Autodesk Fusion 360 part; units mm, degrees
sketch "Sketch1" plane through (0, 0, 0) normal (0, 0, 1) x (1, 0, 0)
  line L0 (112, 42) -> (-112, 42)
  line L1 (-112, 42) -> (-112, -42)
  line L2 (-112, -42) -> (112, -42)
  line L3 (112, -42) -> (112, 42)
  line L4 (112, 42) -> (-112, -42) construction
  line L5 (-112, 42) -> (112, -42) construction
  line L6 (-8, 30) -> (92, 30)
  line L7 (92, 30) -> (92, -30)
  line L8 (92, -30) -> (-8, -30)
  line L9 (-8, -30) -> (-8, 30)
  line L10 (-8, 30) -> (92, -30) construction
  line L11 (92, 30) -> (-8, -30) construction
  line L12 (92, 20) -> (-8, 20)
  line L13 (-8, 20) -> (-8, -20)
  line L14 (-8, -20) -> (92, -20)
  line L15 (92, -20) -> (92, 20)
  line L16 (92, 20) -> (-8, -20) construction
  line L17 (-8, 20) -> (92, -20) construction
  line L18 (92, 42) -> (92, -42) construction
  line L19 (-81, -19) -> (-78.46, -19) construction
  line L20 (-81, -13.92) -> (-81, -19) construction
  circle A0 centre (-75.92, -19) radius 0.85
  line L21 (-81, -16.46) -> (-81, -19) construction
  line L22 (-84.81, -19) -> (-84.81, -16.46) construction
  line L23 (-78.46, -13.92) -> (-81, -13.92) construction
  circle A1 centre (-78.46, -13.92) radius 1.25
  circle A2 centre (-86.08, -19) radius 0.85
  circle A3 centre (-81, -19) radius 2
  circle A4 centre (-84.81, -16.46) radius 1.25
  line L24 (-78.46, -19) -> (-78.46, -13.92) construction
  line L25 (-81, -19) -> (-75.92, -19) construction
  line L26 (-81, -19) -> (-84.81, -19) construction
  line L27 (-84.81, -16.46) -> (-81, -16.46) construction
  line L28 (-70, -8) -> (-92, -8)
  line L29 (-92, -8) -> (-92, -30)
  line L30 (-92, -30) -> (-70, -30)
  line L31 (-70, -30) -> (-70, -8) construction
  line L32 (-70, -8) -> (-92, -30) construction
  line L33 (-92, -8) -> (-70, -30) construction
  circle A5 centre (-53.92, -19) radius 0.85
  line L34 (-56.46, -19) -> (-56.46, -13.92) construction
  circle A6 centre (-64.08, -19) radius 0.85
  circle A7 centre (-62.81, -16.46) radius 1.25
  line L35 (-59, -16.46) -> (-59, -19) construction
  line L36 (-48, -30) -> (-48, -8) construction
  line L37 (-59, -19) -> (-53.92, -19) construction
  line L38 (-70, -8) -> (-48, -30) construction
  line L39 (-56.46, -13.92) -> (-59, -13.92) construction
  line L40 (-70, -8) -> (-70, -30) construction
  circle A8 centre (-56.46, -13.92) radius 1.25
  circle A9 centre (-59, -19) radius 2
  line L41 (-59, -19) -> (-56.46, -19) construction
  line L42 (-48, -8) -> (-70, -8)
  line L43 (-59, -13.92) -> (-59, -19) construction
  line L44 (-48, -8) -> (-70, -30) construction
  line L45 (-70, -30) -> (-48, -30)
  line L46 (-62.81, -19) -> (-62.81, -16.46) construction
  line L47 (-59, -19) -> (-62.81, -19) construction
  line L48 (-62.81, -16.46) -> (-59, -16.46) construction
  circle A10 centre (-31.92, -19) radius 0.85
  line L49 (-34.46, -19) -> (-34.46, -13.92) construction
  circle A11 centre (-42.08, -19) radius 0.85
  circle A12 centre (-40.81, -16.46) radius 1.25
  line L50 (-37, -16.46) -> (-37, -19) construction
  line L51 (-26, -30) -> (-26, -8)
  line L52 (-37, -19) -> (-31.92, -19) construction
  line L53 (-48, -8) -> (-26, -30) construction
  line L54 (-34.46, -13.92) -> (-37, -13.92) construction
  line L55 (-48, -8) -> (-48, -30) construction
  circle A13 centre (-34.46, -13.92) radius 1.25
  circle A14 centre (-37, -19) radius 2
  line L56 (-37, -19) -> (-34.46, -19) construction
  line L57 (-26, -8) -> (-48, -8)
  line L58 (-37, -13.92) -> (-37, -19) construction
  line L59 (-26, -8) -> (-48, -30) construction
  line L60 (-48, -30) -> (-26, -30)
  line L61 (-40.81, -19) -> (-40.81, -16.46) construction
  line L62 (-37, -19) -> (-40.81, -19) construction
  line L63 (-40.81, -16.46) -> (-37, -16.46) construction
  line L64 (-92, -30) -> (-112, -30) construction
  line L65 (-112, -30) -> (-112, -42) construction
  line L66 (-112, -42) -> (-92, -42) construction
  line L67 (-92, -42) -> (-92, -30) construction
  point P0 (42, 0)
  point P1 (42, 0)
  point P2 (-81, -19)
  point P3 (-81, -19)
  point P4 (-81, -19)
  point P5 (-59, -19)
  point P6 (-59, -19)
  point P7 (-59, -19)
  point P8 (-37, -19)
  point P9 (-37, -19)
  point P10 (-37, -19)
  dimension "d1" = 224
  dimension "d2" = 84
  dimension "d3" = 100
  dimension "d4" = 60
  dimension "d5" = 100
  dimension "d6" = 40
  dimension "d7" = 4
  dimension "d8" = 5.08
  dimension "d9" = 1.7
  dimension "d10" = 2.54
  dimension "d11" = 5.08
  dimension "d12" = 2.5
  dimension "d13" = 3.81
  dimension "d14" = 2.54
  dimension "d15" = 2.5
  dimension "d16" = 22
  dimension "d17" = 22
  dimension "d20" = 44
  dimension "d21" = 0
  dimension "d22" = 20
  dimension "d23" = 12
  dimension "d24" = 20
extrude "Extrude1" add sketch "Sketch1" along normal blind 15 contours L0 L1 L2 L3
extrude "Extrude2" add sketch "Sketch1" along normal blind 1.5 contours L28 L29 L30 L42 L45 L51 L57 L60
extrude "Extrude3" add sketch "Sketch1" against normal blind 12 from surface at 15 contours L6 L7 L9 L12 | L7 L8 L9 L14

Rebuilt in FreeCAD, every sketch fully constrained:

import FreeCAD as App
import Part
import Sketcher

V = App.Vector


def add_polygon(sketch, points):
    """Adds a closed chain of lines whose ends are joined by coincident constraints."""
    first, n = sketch.GeometryCount, len(points)
    for a, b in zip(points, points[1:] + points[:1]):
        sketch.addGeometry(Part.LineSegment(App.Vector(*a, 0), App.Vector(*b, 0)), False)
    for i in range(n):
        sketch.addConstraint(Sketcher.Constraint("Coincident", first + i, 2, first + (i + 1) % n, 1))

doc = App.newDocument("Part")
body = doc.addObject("PartDesign::Body", "Body")

# Sketch on XY plane
sketch1 = body.newObject("Sketcher::SketchObject", "Sketch")
sketch1.AttachmentSupport = (doc.getObject("XY_Plane"), [""])
sketch1.MapMode = "FlatFace"
add_polygon(sketch1, [(112, -42), (112, 42), (-112, 42), (-112, -42)])  # lines 0-3
add_polygon(sketch1, [(-92, -8), (-26, -8), (-26, -30), (-92, -30)])  # lines 4-7
add_polygon(sketch1, [(-8, -30), (-8, 30), (92, 30), (92, -30)])  # lines 8-11
sketch1.addConstraint(Sketcher.Constraint("Vertical", 0))
sketch1.addConstraint(Sketcher.Constraint("Horizontal", 1))
sketch1.addConstraint(Sketcher.Constraint("Vertical", 2))
sketch1.addConstraint(Sketcher.Constraint("Horizontal", 3))
sketch1.addConstraint(Sketcher.Constraint("Horizontal", 4))
sketch1.addConstraint(Sketcher.Constraint("Vertical", 5))
sketch1.addConstraint(Sketcher.Constraint("Horizontal", 6))
sketch1.addConstraint(Sketcher.Constraint("Vertical", 7))
sketch1.addConstraint(Sketcher.Constraint("Vertical", 8))
sketch1.addConstraint(Sketcher.Constraint("Horizontal", 9))
sketch1.addConstraint(Sketcher.Constraint("Vertical", 10))
sketch1.addConstraint(Sketcher.Constraint("Horizontal", 11))
sketch1.addConstraint(Sketcher.Constraint("Symmetric", 0, 2, 2, 2, -1, 1))
sketch1.addConstraint(Sketcher.Constraint("Symmetric", 6, 2, 9, 2, -1, 1))
sketch1.addConstraint(Sketcher.Constraint("Horizontal", 6, 2, 10, 2))
sketch1.addConstraint(Sketcher.Constraint("DistanceX", 1, 2, 1, 1, 224.0))
sketch1.addConstraint(Sketcher.Constraint("DistanceX", 9, 1, 9, 2, 100.0))
sketch1.addConstraint(Sketcher.Constraint("DistanceY", 0, 1, 0, 2, 84.0))
sketch1.addConstraint(Sketcher.Constraint("DistanceY", 5, 2, 5, 1, 22.0))
sketch1.addConstraint(Sketcher.Constraint("DistanceY", 8, 1, 8, 2, 60.0))
sketch1.addConstraint(Sketcher.Constraint("DistanceX", 2, 2, 6, 2, 20.0))
sketch1.addConstraint(Sketcher.Constraint("DistanceX", 4, 1, 4, 2, 66.0))
pad1 = body.newObject("PartDesign::Pad", "Pad")
pad1.Profile = sketch1
pad1.Length = 15

# Sketch on XY plane
sketch2 = body.newObject("Sketcher::SketchObject", "Sketch001")
sketch2.AttachmentSupport = (doc.getObject("XY_Plane"), [""])
sketch2.MapMode = "FlatFace"
add_polygon(sketch2, [(-26, -8), (-92, -8), (-92, -30), (-26, -30)])  # lines 0-3
sketch2.addGeometry(Part.Circle(V(-86.1, -19, 0), V(0, 0, 1), 0.8), False)  # 4
sketch2.addGeometry(Part.Circle(V(-84.8, -16.5, 0), V(0, 0, 1), 1.2), False)  # 5
sketch2.addGeometry(Part.Circle(V(-81, -19, 0), V(0, 0, 1), 2), False)  # 6
sketch2.addGeometry(Part.Circle(V(-75.9, -19, 0), V(0, 0, 1), 0.8), False)  # 7
sketch2.addGeometry(Part.Circle(V(-64.1, -19, 0), V(0, 0, 1), 0.8), False)  # 8
sketch2.addGeometry(Part.Circle(V(-59, -19, 0), V(0, 0, 1), 2), False)  # 9
sketch2.addGeometry(Part.Circle(V(-62.8, -16.5, 0), V(0, 0, 1), 1.2), False)  # 10
sketch2.addGeometry(Part.Circle(V(-78.5, -13.9, 0), V(0, 0, 1), 1.2), False)  # 11
sketch2.addGeometry(Part.Circle(V(-56.5, -13.9, 0), V(0, 0, 1), 1.2), False)  # 12
sketch2.addGeometry(Part.Circle(V(-53.9, -19, 0), V(0, 0, 1), 0.8), False)  # 13
sketch2.addGeometry(Part.Circle(V(-42.1, -19, 0), V(0, 0, 1), 0.8), False)  # 14
sketch2.addGeometry(Part.Circle(V(-37, -19, 0), V(0, 0, 1), 2), False)  # 15
sketch2.addGeometry(Part.Circle(V(-31.9, -19, 0), V(0, 0, 1), 0.8), False)  # 16
sketch2.addGeometry(Part.Circle(V(-40.8, -16.5, 0), V(0, 0, 1), 1.2), False)  # 17
sketch2.addGeometry(Part.Circle(V(-34.5, -13.9, 0), V(0, 0, 1), 1.2), False)  # 18
sketch2.addConstraint(Sketcher.Constraint("Horizontal", 0))
sketch2.addConstraint(Sketcher.Constraint("Vertical", 1))
sketch2.addConstraint(Sketcher.Constraint("Horizontal", 2))
sketch2.addConstraint(Sketcher.Constraint("Vertical", 3))
sketch2.addConstraint(Sketcher.Constraint("Equal", 4, 7))
sketch2.addConstraint(Sketcher.Constraint("Equal", 7, 8))
sketch2.addConstraint(Sketcher.Constraint("Equal", 6, 9))
sketch2.addConstraint(Sketcher.Constraint("Equal", 5, 10))
sketch2.addConstraint(Sketcher.Constraint("Equal", 10, 11))
sketch2.addConstraint(Sketcher.Constraint("Equal", 11, 12))
sketch2.addConstraint(Sketcher.Constraint("Equal", 8, 13))
sketch2.addConstraint(Sketcher.Constraint("Equal", 13, 14))
sketch2.addConstraint(Sketcher.Constraint("Equal", 9, 15))
sketch2.addConstraint(Sketcher.Constraint("Equal", 14, 16))
sketch2.addConstraint(Sketcher.Constraint("Equal", 12, 17))
sketch2.addConstraint(Sketcher.Constraint("Equal", 17, 18))
sketch2.addConstraint(Sketcher.Constraint("Horizontal", 4, 3, 6, 3))
sketch2.addConstraint(Sketcher.Constraint("Horizontal", 6, 3, 7, 3))
sketch2.addConstraint(Sketcher.Constraint("Horizontal", 7, 3, 8, 3))
sketch2.addConstraint(Sketcher.Constraint("Horizontal", 8, 3, 9, 3))
sketch2.addConstraint(Sketcher.Constraint("Horizontal", 5, 3, 10, 3))
sketch2.addConstraint(Sketcher.Constraint("Horizontal", 11, 3, 12, 3))
sketch2.addConstraint(Sketcher.Constraint("Horizontal", 9, 3, 13, 3))
sketch2.addConstraint(Sketcher.Constraint("Horizontal", 13, 3, 14, 3))
sketch2.addConstraint(Sketcher.Constraint("Horizontal", 14, 3, 15, 3))
sketch2.addConstraint(Sketcher.Constraint("Horizontal", 15, 3, 16, 3))
sketch2.addConstraint(Sketcher.Constraint("Horizontal", 10, 3, 17, 3))
sketch2.addConstraint(Sketcher.Constraint("Horizontal", 12, 3, 18, 3))
sketch2.addConstraint(Sketcher.Constraint("Diameter", 6, 4.0))
sketch2.addConstraint(Sketcher.Constraint("Diameter", 4, 1.7))
sketch2.addConstraint(Sketcher.Constraint("Diameter", 5, 2.5))
sketch2.addConstraint(Sketcher.Constraint("DistanceY", 1, 2, 1, 1, 22.0))
sketch2.addConstraint(Sketcher.Constraint("DistanceX", 4, 3, 8, 3, 22.0))
sketch2.addConstraint(Sketcher.Constraint("DistanceX", 6, 3, 9, 3, 22.0))
sketch2.addConstraint(Sketcher.Constraint("DistanceX", 5, 3, 10, 3, 22.0))
sketch2.addConstraint(Sketcher.Constraint("DistanceX", 11, 3, 12, 3, 22.0))
sketch2.addConstraint(Sketcher.Constraint("DistanceX", 7, 3, 13, 3, 22.0))
sketch2.addConstraint(Sketcher.Constraint("DistanceX", 8, 3, 14, 3, 22.0))
sketch2.addConstraint(Sketcher.Constraint("DistanceX", 9, 3, 15, 3, 22.0))
sketch2.addConstraint(Sketcher.Constraint("DistanceX", 13, 3, 16, 3, 22.0))
sketch2.addConstraint(Sketcher.Constraint("DistanceX", 0, 2, 0, 1, 66.0))
sketch2.addConstraint(Sketcher.Constraint("DistanceY", 4, 3, 5, 3, 2.54))
sketch2.addConstraint(Sketcher.Constraint("DistanceX", 5, 3, 6, 3, 3.81))
sketch2.addConstraint(Sketcher.Constraint("DistanceX", 4, 3, 6, 3, 5.08))
sketch2.addConstraint(Sketcher.Constraint("DistanceX", 6, 3, 7, 3, 5.08))
sketch2.addConstraint(Sketcher.Constraint("DistanceX", 11, 3, 7, 3, 2.54))
sketch2.addConstraint(Sketcher.Constraint("DistanceY", 7, 3, 11, 3, 5.08))
sketch2.addConstraint(Sketcher.Constraint("DistanceX", 17, 3, 15, 3, 3.81))
sketch2.addConstraint(Sketcher.Constraint("DistanceX", 15, 3, 18, 3, 2.54))
sketch2.addConstraint(Sketcher.Constraint("DistanceY", 4, 3, -1, 1, 19.0))
sketch2.addConstraint(Sketcher.Constraint("DistanceX", 6, 3, -1, 1, 81.0))
sketch2.addConstraint(Sketcher.Constraint("DistanceX", 0, 2, -1, 1, 92.0))
sketch2.addConstraint(Sketcher.Constraint("DistanceY", 0, 2, -1, 1, 8.0))
pad2 = body.newObject("PartDesign::Pad", "Pad001")
pad2.Profile = sketch2
pad2.Length = 1.5

# Sketch on XY plane
sketch3 = body.newObject("Sketcher::SketchObject", "Sketch002")
sketch3.AttachmentSupport = (doc.getObject("XY_Plane"), [""])
sketch3.MapMode = "FlatFace"
sketch3.AttachmentOffset = App.Placement(V(0, 0, 15), App.Rotation())
add_polygon(sketch3, [(92, 30), (-8, 30), (-8, 20), (92, 20)])  # lines 0-3
add_polygon(sketch3, [(92, -20), (-8, -20), (-8, -30), (92, -30)])  # lines 4-7
sketch3.addConstraint(Sketcher.Constraint("Horizontal", 0))
sketch3.addConstraint(Sketcher.Constraint("Vertical", 1))
sketch3.addConstraint(Sketcher.Constraint("Horizontal", 2))
sketch3.addConstraint(Sketcher.Constraint("Vertical", 3))
sketch3.addConstraint(Sketcher.Constraint("Horizontal", 4))
sketch3.addConstraint(Sketcher.Constraint("Vertical", 5))
sketch3.addConstraint(Sketcher.Constraint("Horizontal", 6))
sketch3.addConstraint(Sketcher.Constraint("Vertical", 7))
sketch3.addConstraint(Sketcher.Constraint("Symmetric", 1, 2, 4, 2, -1))
sketch3.addConstraint(Sketcher.Constraint("Symmetric", 3, 2, 6, 2, -1))
sketch3.addConstraint(Sketcher.Constraint("DistanceX", 0, 2, 0, 1, 100.0))
sketch3.addConstraint(Sketcher.Constraint("DistanceY", -1, 1, 1, 2, 20.0))
sketch3.addConstraint(Sketcher.Constraint("DistanceY", 5, 2, 0, 2, 60.0))
sketch3.addConstraint(Sketcher.Constraint("DistanceX", 0, 2, -1, 1, 8.0))
pad3 = body.newObject("PartDesign::Pad", "Pad002")
pad3.Profile = sketch3
pad3.Length = 12
pad3.Reversed = True

doc.recompute()
